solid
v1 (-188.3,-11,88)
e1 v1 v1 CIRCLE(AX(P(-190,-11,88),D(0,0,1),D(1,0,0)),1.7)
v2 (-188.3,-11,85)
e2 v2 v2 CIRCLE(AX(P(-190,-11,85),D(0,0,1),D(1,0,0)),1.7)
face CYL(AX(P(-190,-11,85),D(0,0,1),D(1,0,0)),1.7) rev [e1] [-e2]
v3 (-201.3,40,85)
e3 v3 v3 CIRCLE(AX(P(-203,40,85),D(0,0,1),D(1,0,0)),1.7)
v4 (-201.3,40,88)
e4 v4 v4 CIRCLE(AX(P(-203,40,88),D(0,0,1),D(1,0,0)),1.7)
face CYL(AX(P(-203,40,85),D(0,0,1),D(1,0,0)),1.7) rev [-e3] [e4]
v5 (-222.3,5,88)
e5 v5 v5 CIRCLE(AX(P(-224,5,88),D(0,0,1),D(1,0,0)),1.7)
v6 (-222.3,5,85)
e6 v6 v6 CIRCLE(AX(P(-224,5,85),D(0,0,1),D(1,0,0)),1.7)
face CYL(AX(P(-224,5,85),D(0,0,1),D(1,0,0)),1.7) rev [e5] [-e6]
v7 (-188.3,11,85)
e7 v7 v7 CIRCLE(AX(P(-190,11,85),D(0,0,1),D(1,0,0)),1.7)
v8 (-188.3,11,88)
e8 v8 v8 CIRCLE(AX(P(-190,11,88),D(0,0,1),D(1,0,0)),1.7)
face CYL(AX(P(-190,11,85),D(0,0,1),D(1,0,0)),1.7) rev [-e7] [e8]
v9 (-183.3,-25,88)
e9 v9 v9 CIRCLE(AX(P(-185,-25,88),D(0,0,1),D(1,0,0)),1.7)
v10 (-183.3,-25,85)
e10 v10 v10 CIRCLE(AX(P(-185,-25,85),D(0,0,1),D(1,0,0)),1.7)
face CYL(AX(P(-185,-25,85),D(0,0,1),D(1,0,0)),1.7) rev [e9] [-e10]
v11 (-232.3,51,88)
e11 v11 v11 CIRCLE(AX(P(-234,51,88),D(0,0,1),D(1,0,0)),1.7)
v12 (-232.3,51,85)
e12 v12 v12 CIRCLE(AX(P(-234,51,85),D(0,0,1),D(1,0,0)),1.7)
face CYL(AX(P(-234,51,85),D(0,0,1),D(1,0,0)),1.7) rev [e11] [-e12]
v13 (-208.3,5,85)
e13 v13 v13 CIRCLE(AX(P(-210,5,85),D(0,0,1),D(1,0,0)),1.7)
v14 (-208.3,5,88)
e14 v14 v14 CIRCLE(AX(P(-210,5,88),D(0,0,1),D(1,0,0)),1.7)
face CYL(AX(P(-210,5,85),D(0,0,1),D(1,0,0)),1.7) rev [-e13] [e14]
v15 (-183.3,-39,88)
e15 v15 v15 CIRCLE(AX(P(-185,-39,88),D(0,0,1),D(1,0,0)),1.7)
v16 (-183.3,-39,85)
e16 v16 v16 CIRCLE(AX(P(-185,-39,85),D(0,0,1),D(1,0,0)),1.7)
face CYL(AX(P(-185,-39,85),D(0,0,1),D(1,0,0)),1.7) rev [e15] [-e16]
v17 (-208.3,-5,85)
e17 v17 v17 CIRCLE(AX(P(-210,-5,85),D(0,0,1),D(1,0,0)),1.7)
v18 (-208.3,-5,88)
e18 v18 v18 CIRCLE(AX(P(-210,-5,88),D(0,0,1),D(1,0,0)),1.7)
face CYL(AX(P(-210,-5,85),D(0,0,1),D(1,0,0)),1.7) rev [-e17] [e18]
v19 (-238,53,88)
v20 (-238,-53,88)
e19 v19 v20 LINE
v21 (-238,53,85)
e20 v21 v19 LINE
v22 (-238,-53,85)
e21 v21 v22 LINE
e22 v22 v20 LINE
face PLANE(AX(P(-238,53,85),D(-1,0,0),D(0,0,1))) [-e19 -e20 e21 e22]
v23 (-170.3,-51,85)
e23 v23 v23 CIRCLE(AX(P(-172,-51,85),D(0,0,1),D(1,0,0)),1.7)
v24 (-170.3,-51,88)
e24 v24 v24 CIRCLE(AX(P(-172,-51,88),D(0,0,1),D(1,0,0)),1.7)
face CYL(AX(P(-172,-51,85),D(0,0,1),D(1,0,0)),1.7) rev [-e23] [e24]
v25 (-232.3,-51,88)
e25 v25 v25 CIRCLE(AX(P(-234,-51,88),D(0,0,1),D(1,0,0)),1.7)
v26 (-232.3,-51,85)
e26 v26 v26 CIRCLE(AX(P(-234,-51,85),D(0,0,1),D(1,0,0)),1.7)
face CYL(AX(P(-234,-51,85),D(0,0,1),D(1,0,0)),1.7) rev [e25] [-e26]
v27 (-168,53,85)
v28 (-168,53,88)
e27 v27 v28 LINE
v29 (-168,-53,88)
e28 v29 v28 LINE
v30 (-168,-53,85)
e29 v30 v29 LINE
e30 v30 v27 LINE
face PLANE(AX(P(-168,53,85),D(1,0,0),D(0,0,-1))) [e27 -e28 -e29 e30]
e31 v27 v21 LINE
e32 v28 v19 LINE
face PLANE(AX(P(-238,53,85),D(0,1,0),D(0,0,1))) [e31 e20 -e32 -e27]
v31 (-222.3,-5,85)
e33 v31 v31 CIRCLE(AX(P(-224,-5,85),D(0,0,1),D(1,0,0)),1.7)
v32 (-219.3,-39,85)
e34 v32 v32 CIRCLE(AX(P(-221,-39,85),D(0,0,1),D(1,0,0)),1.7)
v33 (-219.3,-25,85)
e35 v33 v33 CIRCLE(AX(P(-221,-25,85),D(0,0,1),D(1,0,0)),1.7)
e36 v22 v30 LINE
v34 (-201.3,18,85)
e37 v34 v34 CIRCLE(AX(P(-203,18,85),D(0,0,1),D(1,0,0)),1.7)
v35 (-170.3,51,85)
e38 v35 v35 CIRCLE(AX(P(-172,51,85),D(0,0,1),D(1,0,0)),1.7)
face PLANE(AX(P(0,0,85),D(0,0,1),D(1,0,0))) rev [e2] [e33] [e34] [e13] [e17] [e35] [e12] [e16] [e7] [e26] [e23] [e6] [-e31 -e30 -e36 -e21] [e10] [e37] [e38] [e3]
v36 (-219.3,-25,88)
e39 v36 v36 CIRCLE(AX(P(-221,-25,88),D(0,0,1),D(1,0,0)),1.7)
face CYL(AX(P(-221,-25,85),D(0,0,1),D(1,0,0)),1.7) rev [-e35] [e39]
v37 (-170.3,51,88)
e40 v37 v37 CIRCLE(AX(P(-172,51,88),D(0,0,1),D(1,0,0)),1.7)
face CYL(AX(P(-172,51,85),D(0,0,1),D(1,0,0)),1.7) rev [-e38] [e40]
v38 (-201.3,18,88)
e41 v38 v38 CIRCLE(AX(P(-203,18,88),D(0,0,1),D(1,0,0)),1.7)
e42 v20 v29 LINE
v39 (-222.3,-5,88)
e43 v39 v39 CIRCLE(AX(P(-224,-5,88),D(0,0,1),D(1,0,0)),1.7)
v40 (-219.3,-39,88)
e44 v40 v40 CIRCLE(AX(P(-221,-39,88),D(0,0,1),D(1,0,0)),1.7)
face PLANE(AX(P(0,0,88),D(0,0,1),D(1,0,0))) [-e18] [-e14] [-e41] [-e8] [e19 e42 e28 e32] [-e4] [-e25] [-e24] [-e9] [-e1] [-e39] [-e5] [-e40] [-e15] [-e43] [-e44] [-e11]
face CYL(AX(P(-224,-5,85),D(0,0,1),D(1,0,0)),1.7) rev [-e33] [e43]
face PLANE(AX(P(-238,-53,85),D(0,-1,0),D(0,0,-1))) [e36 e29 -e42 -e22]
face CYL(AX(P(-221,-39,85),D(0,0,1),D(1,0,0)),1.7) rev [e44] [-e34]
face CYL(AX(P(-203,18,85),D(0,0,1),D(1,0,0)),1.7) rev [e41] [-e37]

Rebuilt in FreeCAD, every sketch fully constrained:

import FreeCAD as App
import Part
import Sketcher
Q = App.Units.Quantity

doc = App.newDocument("Part")
body = doc.addObject("PartDesign::Body", "Body")

# Sketch on XY plane
sketch1 = body.newObject("Sketcher::SketchObject", "Sketch")
sketch1.AttachmentSupport = (doc.getObject("XY_Plane"), [""])
sketch1.MapMode = "FlatFace"
sketch1.AttachmentOffset = App.Placement(App.Vector(0, 0, 88), App.Rotation())
sketch1.addGeometry([
    Part.LineSegment(App.Vector(-238, 53, 0), App.Vector(-238, -53, 0)),  # 0
    Part.LineSegment(App.Vector(-238, -53, 0), App.Vector(-168, -53, 0)),  # 1
    Part.LineSegment(App.Vector(-168, -53, 0), App.Vector(-168, 53, 0)),  # 2
    Part.LineSegment(App.Vector(-168, 53, 0), App.Vector(-238, 53, 0)),  # 3
    Part.Circle(App.Vector(-234, -51, 0), App.Vector(0, 0, 1), 1.7),  # 4
    Part.Circle(App.Vector(-221, -39, 0), App.Vector(0, 0, 1), 1.7),  # 5
    Part.Circle(App.Vector(-221, -25, 0), App.Vector(0, 0, 1), 1.7),  # 6
    Part.Circle(App.Vector(-224, -5, 0), App.Vector(0, 0, 1), 1.7),  # 7
    Part.Circle(App.Vector(-210, -5, 0), App.Vector(0, 0, 1), 1.7),  # 8
    Part.Circle(App.Vector(-172, -51, 0), App.Vector(0, 0, 1), 1.7),  # 9
    Part.Circle(App.Vector(-185, -39, 0), App.Vector(0, 0, 1), 1.7),  # 10
    Part.Circle(App.Vector(-190, -11, 0), App.Vector(0, 0, 1), 1.7),  # 11
    Part.Circle(App.Vector(-185, -25, 0), App.Vector(0, 0, 1), 1.7),  # 12
    Part.Circle(App.Vector(-224, 5, 0), App.Vector(0, 0, 1), 1.7),  # 13
    Part.Circle(App.Vector(-210, 5, 0), App.Vector(0, 0, 1), 1.7),  # 14
    Part.Circle(App.Vector(-234, 51, 0), App.Vector(0, 0, 1), 1.7),  # 15
    Part.Circle(App.Vector(-190, 11, 0), App.Vector(0, 0, 1), 1.7),  # 16
    Part.Circle(App.Vector(-203, 18, 0), App.Vector(0, 0, 1), 1.7),  # 17
    Part.Circle(App.Vector(-203, 40, 0), App.Vector(0, 0, 1), 1.7),  # 18
    Part.Circle(App.Vector(-172, 51, 0), App.Vector(0, 0, 1), 1.7),  # 19
], False)
sketch1.addConstraint([
    Sketcher.Constraint("Coincident", 0, 2, 1, 1),
    Sketcher.Constraint("Coincident", 1, 2, 2, 1),
    Sketcher.Constraint("Coincident", 2, 2, 3, 1),
    Sketcher.Constraint("Coincident", 3, 2, 0, 1),
    Sketcher.Constraint("Vertical", 0),
    Sketcher.Constraint("Horizontal", 1),
    Sketcher.Constraint("Vertical", 2),
    Sketcher.Constraint("Horizontal", 3),
    Sketcher.Constraint("Equal", 4, 5),
    Sketcher.Constraint("Equal", 5, 6),
    Sketcher.Constraint("Equal", 6, 7),
    Sketcher.Constraint("Equal", 7, 8),
    Sketcher.Constraint("Equal", 8, 9),
    Sketcher.Constraint("Equal", 9, 10),
    Sketcher.Constraint("Equal", 10, 11),
    Sketcher.Constraint("Equal", 11, 12),
    Sketcher.Constraint("Equal", 12, 13),
    Sketcher.Constraint("Equal", 13, 14),
    Sketcher.Constraint("Equal", 14, 15),
    Sketcher.Constraint("Equal", 15, 16),
    Sketcher.Constraint("Equal", 16, 17),
    Sketcher.Constraint("Equal", 17, 18),
    Sketcher.Constraint("Equal", 18, 19),
    Sketcher.Constraint("Symmetric", 7, 3, 13, 3, -1),
    Sketcher.Constraint("Symmetric", 8, 3, 14, 3, -1),
    Sketcher.Constraint("Symmetric", 4, 3, 15, 3, -1),
    Sketcher.Constraint("Symmetric", 11, 3, 16, 3, -1),
    Sketcher.Constraint("Symmetric", 9, 3, 19, 3, -1),
    Sketcher.Constraint("Horizontal", 7, 3, 8, 3),
    Sketcher.Constraint("Horizontal", 4, 3, 9, 3),
    Sketcher.Constraint("Horizontal", 5, 3, 10, 3),
    Sketcher.Constraint("Horizontal", 6, 3, 12, 3),
    Sketcher.Constraint("Vertical", 5, 3, 6, 3),
    Sketcher.Constraint("Vertical", 10, 3, 12, 3),
    Sketcher.Constraint("Vertical", 17, 3, 18, 3),
    Sketcher.Constraint("Diameter", 4, Q("3.4 mm")),
    Sketcher.Constraint("DistanceX", 1, 1, 1, 2, Q("70 mm")),
    Sketcher.Constraint("DistanceY", 0, 2, 0, 1, Q("106 mm")),
    Sketcher.Constraint("DistanceX", 4, 3, -1, 1, Q("234 mm")),
    Sketcher.Constraint("DistanceY", 4, 3, -1, 1, Q("51 mm")),
    Sketcher.Constraint("DistanceX", 5, 3, -1, 1, Q("221 mm")),
    Sketcher.Constraint("DistanceY", 5, 3, -1, 1, Q("39 mm")),
    Sketcher.Constraint("DistanceY", 6, 3, -1, 1, Q("25 mm")),
    Sketcher.Constraint("DistanceX", 7, 3, -1, 1, Q("224 mm")),
    Sketcher.Constraint("DistanceY", 7, 3, -1, 1, Q("5 mm")),
    Sketcher.Constraint("DistanceX", 8, 3, -1, 1, Q("210 mm")),
    Sketcher.Constraint("DistanceX", 9, 3, -1, 1, Q("172 mm")),
    Sketcher.Constraint("DistanceX", 10, 3, -1, 1, Q("185 mm")),
    Sketcher.Constraint("DistanceX", 11, 3, -1, 1, Q("190 mm")),
    Sketcher.Constraint("DistanceY", 11, 3, -1, 1, Q("11 mm")),
    Sketcher.Constraint("DistanceX", 17, 3, -1, 1, Q("203 mm")),
    Sketcher.Constraint("DistanceY", -1, 1, 17, 3, Q("18 mm")),
    Sketcher.Constraint("DistanceY", -1, 1, 18, 3, Q("40 mm")),
    Sketcher.Constraint("DistanceX", 0, 2, -1, 1, Q("238 mm")),
    Sketcher.Constraint("DistanceY", 0, 2, -1, 1, Q("53 mm")),
])
pad1 = body.newObject("PartDesign::Pad", "Pad")
pad1.Profile = sketch1
pad1.Length = 3
pad1.Reversed = True

doc.recompute()
